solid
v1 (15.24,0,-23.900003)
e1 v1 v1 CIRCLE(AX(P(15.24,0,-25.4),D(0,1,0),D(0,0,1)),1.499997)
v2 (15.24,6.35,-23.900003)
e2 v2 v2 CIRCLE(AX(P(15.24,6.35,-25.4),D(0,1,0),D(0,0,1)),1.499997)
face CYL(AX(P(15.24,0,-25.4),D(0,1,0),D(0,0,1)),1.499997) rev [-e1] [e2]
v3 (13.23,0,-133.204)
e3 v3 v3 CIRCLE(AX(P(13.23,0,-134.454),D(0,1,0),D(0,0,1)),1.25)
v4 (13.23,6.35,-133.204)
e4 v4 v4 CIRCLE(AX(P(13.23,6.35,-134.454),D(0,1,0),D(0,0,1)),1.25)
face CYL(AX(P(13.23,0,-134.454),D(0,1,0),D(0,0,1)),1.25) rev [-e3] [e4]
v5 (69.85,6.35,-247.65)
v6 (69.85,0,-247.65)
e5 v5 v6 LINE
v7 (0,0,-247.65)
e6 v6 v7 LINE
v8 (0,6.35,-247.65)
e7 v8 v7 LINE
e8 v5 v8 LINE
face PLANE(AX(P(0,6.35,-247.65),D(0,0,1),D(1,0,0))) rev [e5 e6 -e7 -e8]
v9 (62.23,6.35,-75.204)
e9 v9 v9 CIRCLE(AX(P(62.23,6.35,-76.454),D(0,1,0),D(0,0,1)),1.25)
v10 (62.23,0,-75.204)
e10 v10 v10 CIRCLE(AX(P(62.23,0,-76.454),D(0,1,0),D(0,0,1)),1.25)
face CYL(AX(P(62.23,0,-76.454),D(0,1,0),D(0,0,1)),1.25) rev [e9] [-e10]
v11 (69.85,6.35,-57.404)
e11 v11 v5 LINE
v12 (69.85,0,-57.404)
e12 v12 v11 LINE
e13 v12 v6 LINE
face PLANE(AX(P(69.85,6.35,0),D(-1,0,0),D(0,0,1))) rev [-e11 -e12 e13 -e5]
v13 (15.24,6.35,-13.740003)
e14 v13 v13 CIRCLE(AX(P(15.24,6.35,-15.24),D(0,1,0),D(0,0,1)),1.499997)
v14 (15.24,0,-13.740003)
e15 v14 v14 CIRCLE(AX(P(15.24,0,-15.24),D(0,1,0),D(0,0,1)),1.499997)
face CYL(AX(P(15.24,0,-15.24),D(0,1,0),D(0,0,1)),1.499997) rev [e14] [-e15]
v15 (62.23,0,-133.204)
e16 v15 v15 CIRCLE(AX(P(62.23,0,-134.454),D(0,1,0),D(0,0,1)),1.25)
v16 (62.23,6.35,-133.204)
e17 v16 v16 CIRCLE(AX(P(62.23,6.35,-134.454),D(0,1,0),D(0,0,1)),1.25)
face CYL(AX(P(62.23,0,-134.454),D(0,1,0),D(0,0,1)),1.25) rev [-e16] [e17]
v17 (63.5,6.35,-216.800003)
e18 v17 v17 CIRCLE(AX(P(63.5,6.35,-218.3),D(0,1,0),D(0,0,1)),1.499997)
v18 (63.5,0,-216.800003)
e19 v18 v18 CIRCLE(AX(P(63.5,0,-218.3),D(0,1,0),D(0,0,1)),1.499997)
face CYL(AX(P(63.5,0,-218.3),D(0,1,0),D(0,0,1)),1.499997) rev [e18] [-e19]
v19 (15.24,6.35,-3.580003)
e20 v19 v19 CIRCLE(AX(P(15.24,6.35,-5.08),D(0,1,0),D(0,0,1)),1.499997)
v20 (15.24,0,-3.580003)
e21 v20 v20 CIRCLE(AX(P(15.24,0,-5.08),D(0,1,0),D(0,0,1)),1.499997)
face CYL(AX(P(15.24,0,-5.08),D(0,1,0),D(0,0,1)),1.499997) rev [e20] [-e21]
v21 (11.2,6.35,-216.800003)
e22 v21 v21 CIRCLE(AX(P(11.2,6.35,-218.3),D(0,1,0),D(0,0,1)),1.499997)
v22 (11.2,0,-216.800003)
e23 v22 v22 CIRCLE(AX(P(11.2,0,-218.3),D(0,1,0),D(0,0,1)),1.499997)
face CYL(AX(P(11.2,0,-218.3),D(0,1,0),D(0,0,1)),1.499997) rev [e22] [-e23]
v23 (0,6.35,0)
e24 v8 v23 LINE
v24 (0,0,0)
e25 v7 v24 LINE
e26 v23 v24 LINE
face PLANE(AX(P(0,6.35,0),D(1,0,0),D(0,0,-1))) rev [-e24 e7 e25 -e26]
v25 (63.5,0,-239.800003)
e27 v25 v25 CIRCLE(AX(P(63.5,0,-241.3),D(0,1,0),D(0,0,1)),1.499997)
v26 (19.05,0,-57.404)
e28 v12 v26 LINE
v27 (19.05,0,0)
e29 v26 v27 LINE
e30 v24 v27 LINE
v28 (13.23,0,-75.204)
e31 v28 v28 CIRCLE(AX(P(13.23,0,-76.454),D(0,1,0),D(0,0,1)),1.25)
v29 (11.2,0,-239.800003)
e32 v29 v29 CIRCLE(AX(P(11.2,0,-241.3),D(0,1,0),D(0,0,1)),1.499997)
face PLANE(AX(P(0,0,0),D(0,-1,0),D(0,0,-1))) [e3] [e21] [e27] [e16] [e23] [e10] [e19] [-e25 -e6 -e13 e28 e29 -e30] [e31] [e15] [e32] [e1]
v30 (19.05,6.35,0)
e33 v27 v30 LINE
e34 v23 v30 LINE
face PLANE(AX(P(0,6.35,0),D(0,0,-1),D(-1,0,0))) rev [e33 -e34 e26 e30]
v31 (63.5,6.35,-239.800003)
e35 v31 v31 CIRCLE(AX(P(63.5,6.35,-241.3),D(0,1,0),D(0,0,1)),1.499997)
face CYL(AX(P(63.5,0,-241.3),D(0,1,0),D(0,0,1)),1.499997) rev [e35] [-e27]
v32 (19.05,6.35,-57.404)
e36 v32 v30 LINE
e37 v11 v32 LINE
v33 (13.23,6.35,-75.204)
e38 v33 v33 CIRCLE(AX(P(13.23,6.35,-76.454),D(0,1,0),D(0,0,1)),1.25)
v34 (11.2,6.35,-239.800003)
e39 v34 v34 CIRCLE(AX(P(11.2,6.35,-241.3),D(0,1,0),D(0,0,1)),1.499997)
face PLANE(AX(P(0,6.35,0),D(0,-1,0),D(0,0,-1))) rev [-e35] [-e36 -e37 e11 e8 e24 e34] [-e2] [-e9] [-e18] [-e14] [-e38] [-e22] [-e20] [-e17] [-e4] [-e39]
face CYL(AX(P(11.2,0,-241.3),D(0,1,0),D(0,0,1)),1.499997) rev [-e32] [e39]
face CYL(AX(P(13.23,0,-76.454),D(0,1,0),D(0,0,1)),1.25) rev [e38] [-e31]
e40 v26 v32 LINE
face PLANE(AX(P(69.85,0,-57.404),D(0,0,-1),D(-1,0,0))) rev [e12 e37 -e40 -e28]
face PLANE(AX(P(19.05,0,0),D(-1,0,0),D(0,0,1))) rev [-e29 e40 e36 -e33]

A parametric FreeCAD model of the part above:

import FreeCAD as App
import Part
import Sketcher

V = App.Vector
Q = App.Units.Quantity


def add_polygon(sketch, points):
    """Adds a closed chain of lines whose ends are joined by coincident constraints."""
    first, n = sketch.GeometryCount, len(points)
    for a, b in zip(points, points[1:] + points[:1]):
        sketch.addGeometry(Part.LineSegment(App.Vector(*a, 0), App.Vector(*b, 0)), False)
    for i in range(n):
        sketch.addConstraint(Sketcher.Constraint("Coincident", first + i, 2, first + (i + 1) % n, 1))

doc = App.newDocument("Part")
params = doc.addObject("Spreadsheet::Sheet", "Params")
for row, (alias, value) in enumerate([
    ("sketch1_width", "2.75 in"),
    ("sketch1_height", "9.75 in"),
    ("pad1_length", "0.25 in"),
    ("sketch2_width", "2 in"),
    ("sketch2_height", "2.26 in"),
], start=1):
    params.set(f"A{row}", alias)
    params.set(f"B{row}", "=" + value)
    params.setAlias(f"B{row}", alias)

body = doc.addObject("PartDesign::Body", "Body")

sketch1 = doc.addObject("Sketcher::SketchObject", "Sketch")
body.addObject(sketch1)
sketch1.AttachmentSupport = (doc.XZ_Plane, [""])
sketch1.MapMode = "FlatFace"
add_polygon(sketch1, [(0, -248), (0, 0), (70, 0), (70, -248)])
sketch1.addConstraint([
    Sketcher.Constraint("Vertical", 0),
    Sketcher.Constraint("Horizontal", 1),
    Sketcher.Constraint("Vertical", 2),
    Sketcher.Constraint("Horizontal", 3),
    Sketcher.Constraint("Coincident", 0, 2, -1, 1),
    Sketcher.Constraint("DistanceX", 1, 1, 1, 2, Q("2.75 in")),
    Sketcher.Constraint("DistanceY", 0, 1, 0, 2, Q("9.75 in")),
])
sketch1.setExpression("Constraints[9]", "Params.sketch1_width")
sketch1.setExpression("Constraints[10]", "Params.sketch1_height")
pad1 = doc.addObject("PartDesign::Pad", "Pad")
body.addObject(pad1)
pad1.Profile = sketch1
pad1.setExpression("Length", "Params.pad1_length")
pad1.Reversed = True

sketch2 = doc.addObject("Sketcher::SketchObject", "Sketch001")
body.addObject(sketch2)
sketch2.AttachmentSupport = (doc.XZ_Plane, [""])
sketch2.MapMode = "FlatFace"
sketch2.AttachmentOffset = App.Placement(V(0, 0, -0.25 * 25.4), App.Rotation())
add_polygon(sketch2, [(19, -57), (19, 0), (70, 0), (70, -57)])
sketch2.addConstraint([
    Sketcher.Constraint("Vertical", 0),
    Sketcher.Constraint("Horizontal", 1),
    Sketcher.Constraint("Vertical", 2),
    Sketcher.Constraint("Horizontal", 3),
    Sketcher.Constraint("PointOnObject", 0, 2, -1),
    Sketcher.Constraint("DistanceX", 1, 1, 1, 2, Q("2 in")),
    Sketcher.Constraint("DistanceY", 0, 1, 0, 2, Q("2.26 in")),
    Sketcher.Constraint("DistanceX", -1, 1, 0, 2, Q("0.75 in")),
])
sketch2.setExpression("Constraints[9]", "Params.sketch2_width")
sketch2.setExpression("Constraints[10]", "Params.sketch2_height")
pocket1 = doc.addObject("PartDesign::Pocket", "Pocket")
body.addObject(pocket1)
pocket1.Profile = sketch2
pocket1.Type = "ThroughAll"
pocket1.Reversed = True

sketch3 = doc.addObject("Sketcher::SketchObject", "Sketch002")
body.addObject(sketch3)
sketch3.AttachmentSupport = (doc.XZ_Plane, [""])
sketch3.MapMode = "FlatFace"
sketch3.AttachmentOffset = App.Placement(V(0, 0, -0.25 * 25.4), App.Rotation())
sketch3.addGeometry([
    Part.Circle(V(15.2, -5.1, 0), V(0, 0, 1), 1.5),
    Part.Circle(V(15.2, -25.4, 0), V(0, 0, 1), 1.5),
    Part.Circle(V(15.2, -15.2, 0), V(0, 0, 1), 1.5),
], False)
sketch3.addConstraint([
    Sketcher.Constraint("Equal", 0, 1),
    Sketcher.Constraint("Equal", 1, 2),
    Sketcher.Constraint("Vertical", 0, 3, 1, 3),
    Sketcher.Constraint("Vertical", 1, 3, 2, 3),
    Sketcher.Constraint("DistanceY", 1, 3, -1, 1, Q("1 in")),
    Sketcher.Constraint("DistanceX", -1, 1, 0, 3, Q("0.6 in")),
    Sketcher.Constraint("DistanceY", 0, 3, -1, 1, Q("0.2 in")),
    Sketcher.Constraint("DistanceY", 2, 3, -1, 1, Q("0.6 in")),
    Sketcher.Constraint("Diameter", 0, Q("2.999994 mm")),
])
pocket2 = doc.addObject("PartDesign::Pocket", "Pocket001")
body.addObject(pocket2)
pocket2.Profile = sketch3
pocket2.Type = "ThroughAll"
pocket2.Reversed = True

sketch4 = doc.addObject("Sketcher::SketchObject", "Sketch003")
body.addObject(sketch4)
sketch4.AttachmentSupport = (doc.XZ_Plane, [""])
sketch4.MapMode = "FlatFace"
sketch4.AttachmentOffset = App.Placement(V(0, 0, -0.25 * 25.4), App.Rotation())
sketch4.addGeometry([
    Part.Circle(V(63.5, -241.3, 0), V(0, 0, 1), 1.5),
    Part.Circle(V(63.5, -218.3, 0), V(0, 0, 1), 1.5),
    Part.Circle(V(11.2, -218.3, 0), V(0, 0, 1), 1.5),
    Part.Circle(V(11.2, -241.3, 0), V(0, 0, 1), 1.5),
], False)
sketch4.addConstraint([
    Sketcher.Constraint("Equal", 0, 1),
    Sketcher.Constraint("Equal", 1, 2),
    Sketcher.Constraint("Equal", 2, 3),
    Sketcher.Constraint("Horizontal", 1, 3, 2, 3),
    Sketcher.Constraint("Horizontal", 0, 3, 3, 3),
    Sketcher.Constraint("Vertical", 0, 3, 1, 3),
    Sketcher.Constraint("Vertical", 2, 3, 3, 3),
    Sketcher.Constraint("DistanceX", -1, 1, 0, 3, Q("2.5 in")),
    Sketcher.Constraint("DistanceY", 0, 3, -1, 1, Q("9.5 in")),
    Sketcher.Constraint("Diameter", 0, Q("2.999994 mm")),
    Sketcher.Constraint("DistanceY", 1, 3, -1, 1, Q("218.3 mm")),
    Sketcher.Constraint("DistanceX", -1, 1, 2, 3, Q("11.2 mm")),
])
pocket3 = doc.addObject("PartDesign::Pocket", "Pocket002")
body.addObject(pocket3)
pocket3.Profile = sketch4
pocket3.Type = "ThroughAll"
pocket3.Reversed = True

sketch5 = doc.addObject("Sketcher::SketchObject", "Sketch004")
body.addObject(sketch5)
sketch5.AttachmentSupport = (doc.XZ_Plane, [""])
sketch5.MapMode = "FlatFace"
sketch5.AttachmentOffset = App.Placement(V(0, 0, -0.25 * 25.4), App.Rotation())
sketch5.addGeometry([
    Part.Circle(V(13.2, -134.5, 0), V(0, 0, 1), 1.2),
    Part.Circle(V(62.2, -134.5, 0), V(0, 0, 1), 1.2),
    Part.Circle(V(62.2, -76.5, 0), V(0, 0, 1), 1.2),
    Part.Circle(V(13.2, -76.5, 0), V(0, 0, 1), 1.2),
], False)
sketch5.addConstraint([
    Sketcher.Constraint("Equal", 0, 1),
    Sketcher.Constraint("Equal", 1, 2),
    Sketcher.Constraint("Equal", 2, 3),
    Sketcher.Constraint("Horizontal", 0, 3, 1, 3),
    Sketcher.Constraint("Horizontal", 2, 3, 3, 3),
    Sketcher.Constraint("Vertical", 1, 3, 2, 3),
    Sketcher.Constraint("Vertical", 0, 3, 3, 3),
    Sketcher.Constraint("Diameter", 0, Q("2.5 mm")),
    Sketcher.Constraint("DistanceX", -1, 1, 1, 3, Q("2.45 in")),
    Sketcher.Constraint("DistanceY", 2, 3, -1, 1, Q("3.01 in")),
    Sketcher.Constraint("DistanceX", -1, 1, 0, 3, Q("13.23 mm")),
    Sketcher.Constraint("DistanceY", 0, 3, -1, 1, Q("134.454 mm")),
])
pocket4 = doc.addObject("PartDesign::Pocket", "Pocket003")
body.addObject(pocket4)
pocket4.Profile = sketch5
pocket4.Type = "ThroughAll"
pocket4.Reversed = True

doc.recompute()
